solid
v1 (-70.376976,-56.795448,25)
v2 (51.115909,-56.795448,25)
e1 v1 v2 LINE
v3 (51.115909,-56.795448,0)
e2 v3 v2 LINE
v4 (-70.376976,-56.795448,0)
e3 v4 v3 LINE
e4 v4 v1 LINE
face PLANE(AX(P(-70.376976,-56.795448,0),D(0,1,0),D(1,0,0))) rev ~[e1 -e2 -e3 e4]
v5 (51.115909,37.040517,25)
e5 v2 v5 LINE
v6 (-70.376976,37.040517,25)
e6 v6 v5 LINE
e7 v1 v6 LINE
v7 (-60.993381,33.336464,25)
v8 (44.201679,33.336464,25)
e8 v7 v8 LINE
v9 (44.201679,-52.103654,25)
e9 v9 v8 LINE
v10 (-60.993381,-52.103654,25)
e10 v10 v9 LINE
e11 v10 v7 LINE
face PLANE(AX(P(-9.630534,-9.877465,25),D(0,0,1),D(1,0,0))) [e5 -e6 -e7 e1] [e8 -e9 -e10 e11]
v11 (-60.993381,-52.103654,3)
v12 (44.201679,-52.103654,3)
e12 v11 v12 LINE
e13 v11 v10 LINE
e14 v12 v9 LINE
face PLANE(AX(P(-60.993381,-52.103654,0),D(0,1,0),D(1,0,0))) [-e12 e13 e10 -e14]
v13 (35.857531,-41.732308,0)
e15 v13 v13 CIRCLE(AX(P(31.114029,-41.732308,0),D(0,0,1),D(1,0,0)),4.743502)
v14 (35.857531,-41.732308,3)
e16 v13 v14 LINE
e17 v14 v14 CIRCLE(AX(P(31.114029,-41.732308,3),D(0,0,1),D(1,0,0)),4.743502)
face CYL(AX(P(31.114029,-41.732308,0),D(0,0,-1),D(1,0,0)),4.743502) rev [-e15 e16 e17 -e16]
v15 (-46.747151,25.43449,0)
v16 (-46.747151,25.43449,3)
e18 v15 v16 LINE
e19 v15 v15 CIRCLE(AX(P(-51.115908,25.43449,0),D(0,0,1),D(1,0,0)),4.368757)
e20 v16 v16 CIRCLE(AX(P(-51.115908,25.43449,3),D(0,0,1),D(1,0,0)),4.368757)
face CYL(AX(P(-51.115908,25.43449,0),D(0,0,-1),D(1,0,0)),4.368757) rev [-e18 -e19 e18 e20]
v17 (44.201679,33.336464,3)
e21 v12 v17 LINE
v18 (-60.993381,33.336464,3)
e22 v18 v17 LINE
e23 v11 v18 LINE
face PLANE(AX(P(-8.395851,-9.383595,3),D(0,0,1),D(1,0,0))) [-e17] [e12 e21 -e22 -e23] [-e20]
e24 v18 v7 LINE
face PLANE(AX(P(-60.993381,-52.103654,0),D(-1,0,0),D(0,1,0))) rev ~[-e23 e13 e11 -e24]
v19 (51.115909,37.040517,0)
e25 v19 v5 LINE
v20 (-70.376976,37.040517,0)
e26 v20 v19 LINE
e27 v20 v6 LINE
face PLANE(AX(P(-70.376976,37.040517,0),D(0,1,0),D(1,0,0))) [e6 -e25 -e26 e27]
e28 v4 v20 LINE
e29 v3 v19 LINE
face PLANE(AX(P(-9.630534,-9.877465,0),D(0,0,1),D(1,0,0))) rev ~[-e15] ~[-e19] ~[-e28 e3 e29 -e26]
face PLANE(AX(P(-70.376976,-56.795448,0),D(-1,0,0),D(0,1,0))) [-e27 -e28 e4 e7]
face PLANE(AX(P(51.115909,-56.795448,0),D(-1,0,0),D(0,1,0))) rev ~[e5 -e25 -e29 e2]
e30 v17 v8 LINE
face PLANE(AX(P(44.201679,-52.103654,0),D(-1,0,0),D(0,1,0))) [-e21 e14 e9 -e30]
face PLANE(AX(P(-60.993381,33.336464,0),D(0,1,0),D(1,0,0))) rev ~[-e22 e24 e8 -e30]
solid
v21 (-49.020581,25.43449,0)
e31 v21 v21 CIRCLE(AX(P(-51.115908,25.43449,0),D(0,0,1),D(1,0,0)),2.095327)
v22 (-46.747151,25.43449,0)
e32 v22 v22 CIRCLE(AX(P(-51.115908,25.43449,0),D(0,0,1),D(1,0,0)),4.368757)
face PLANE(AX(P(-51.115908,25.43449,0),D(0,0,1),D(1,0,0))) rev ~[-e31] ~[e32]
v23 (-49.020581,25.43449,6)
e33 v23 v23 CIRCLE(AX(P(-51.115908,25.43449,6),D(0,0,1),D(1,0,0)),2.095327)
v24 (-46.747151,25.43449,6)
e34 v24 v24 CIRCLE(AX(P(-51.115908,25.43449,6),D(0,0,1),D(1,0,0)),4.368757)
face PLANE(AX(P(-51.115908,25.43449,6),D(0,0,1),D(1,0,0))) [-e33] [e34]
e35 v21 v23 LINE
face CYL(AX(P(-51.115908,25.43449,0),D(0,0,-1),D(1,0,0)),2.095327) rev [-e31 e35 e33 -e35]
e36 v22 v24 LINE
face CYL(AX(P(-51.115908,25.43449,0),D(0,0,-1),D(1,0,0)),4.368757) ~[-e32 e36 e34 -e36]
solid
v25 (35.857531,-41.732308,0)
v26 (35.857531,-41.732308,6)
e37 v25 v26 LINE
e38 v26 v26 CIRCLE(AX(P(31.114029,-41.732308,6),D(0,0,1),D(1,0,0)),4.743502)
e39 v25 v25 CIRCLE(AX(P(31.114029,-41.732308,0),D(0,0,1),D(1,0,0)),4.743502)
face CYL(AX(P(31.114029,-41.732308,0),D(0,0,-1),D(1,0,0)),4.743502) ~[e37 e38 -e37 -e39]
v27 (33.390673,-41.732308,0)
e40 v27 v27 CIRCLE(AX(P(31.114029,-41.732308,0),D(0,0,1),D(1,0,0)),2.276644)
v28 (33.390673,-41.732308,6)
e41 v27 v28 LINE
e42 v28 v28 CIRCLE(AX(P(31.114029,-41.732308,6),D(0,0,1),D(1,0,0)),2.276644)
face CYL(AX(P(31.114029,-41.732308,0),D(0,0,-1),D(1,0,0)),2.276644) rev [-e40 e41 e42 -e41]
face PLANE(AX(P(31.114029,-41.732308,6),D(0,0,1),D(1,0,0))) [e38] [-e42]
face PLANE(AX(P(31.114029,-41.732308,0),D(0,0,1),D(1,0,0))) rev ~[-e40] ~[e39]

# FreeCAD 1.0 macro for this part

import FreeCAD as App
import Part
import Sketcher

doc = App.newDocument("Part")
params = doc.addObject("Spreadsheet::Sheet", "Params")
for row, (alias, value) in enumerate([
    ("pad1_length", "6 mm"),
    ("pad2_length", "3 mm"),
    ("pad3_length", "25 mm"),
], start=1):
    params.set(f"A{row}", alias)
    params.set(f"B{row}", "=" + value)
    params.setAlias(f"B{row}", alias)

body = doc.addObject("PartDesign::Body", "Body")
body.AllowCompound = True

# Sketch on XY plane
sketch1 = body.newObject("Sketcher::SketchObject", "Sketch")
sketch1.AttachmentSupport = (doc.getObject("XY_Plane"), [""])
sketch1.MapMode = "FlatFace"
sketch1.addGeometry([
    Part.Circle(App.Vector(-51.115908, 25.43449, 0), App.Vector(0, 0, 1), 4.368757),
    Part.Circle(App.Vector(-51.115908, 25.43449, 0), App.Vector(0, 0, 1), 2.095327),
    Part.Circle(App.Vector(31.114029, -41.732308, 0), App.Vector(0, 0, 1), 4.743502),
    Part.Circle(App.Vector(31.114029, -41.732308, 0), App.Vector(0, 0, 1), 2.276644),
], False)
sketch1.addConstraint([
    Sketcher.Constraint("Coincident", 1, 3, 0, 3),
    Sketcher.Constraint("Coincident", 3, 3, 2, 3),
    Sketcher.Constraint("Diameter", 3, 4.553288),
    Sketcher.Constraint("Diameter", 0, 8.737514),
    Sketcher.Constraint("Diameter", 1, 4.190654),
    Sketcher.Constraint("Diameter", 2, 9.487004),
    Sketcher.Constraint("DistanceY", 2, 3, 0, 3, 67.166798),
    Sketcher.Constraint("DistanceY", -1, 1, 0, 3, 25.43449),
    Sketcher.Constraint("DistanceX", -1, 1, 2, 3, 31.114029),
    Sketcher.Constraint("DistanceX", 0, 3, -1, 1, 51.115908),
])
pad1 = body.newObject("PartDesign::Pad", "Pad")
pad1.Profile = sketch1
pad1.setExpression("Length", "Params.pad1_length")
body2 = doc.addObject("PartDesign::Body", "Body001")

# Sketch on XY plane
sketch2 = body2.newObject("Sketcher::SketchObject", "Sketch001")
sketch2.AttachmentSupport = (doc.getObject("XY_Plane001"), [""])
sketch2.MapMode = "FlatFace"
sketch2.addGeometry([
    Part.LineSegment(App.Vector(-60.993381, 33.336464, 0), App.Vector(-60.993381, -52.103654, 0)),  # 0
    Part.LineSegment(App.Vector(-60.993381, -52.103654, 0), App.Vector(44.201679, -52.103654, 0)),  # 1
    Part.LineSegment(App.Vector(44.201679, -52.103654, 0), App.Vector(44.201679, 33.336464, 0)),  # 2
    Part.LineSegment(App.Vector(44.201679, 33.336464, 0), App.Vector(-60.993381, 33.336464, 0)),  # 3
    Part.Circle(App.Vector(31.114029, -41.732308, 0), App.Vector(0, 0, 1), 4.743502),  # 4
    Part.Circle(App.Vector(-51.115908, 25.43449, 0), App.Vector(0, 0, 1), 4.368757),  # 5
], False)
sketch2.addConstraint([
    Sketcher.Constraint("Coincident", 0, 2, 1, 1),
    Sketcher.Constraint("Coincident", 1, 2, 2, 1),
    Sketcher.Constraint("Coincident", 2, 2, 3, 1),
    Sketcher.Constraint("Coincident", 3, 2, 0, 1),
    Sketcher.Constraint("Vertical", 0),
    Sketcher.Constraint("Horizontal", 1),
    Sketcher.Constraint("Vertical", 2),
    Sketcher.Constraint("Horizontal", 3),
    Sketcher.Constraint("Diameter", 4, 9.487004),
    Sketcher.Constraint("Diameter", 5, 8.737514),
    Sketcher.Constraint("DistanceX", 1, 1, 1, 2, 105.195061),
    Sketcher.Constraint("DistanceY", 0, 2, 0, 1, 85.440118),
    Sketcher.Constraint("DistanceY", 4, 3, 5, 3, 67.166798),
    Sketcher.Constraint("DistanceX", -1, 1, 4, 3, 31.114029),
    Sketcher.Constraint("DistanceY", 4, 3, -1, 1, 41.732308),
    Sketcher.Constraint("DistanceX", 0, 2, -1, 1, 60.993381),
    Sketcher.Constraint("DistanceY", 4, 3, 2, 2, 75.068772),
    Sketcher.Constraint("DistanceX", 5, 3, -1, 1, 51.115908),
])
pad2 = body2.newObject("PartDesign::Pad", "Pad001")
pad2.Profile = sketch2
pad2.setExpression("Length", "Params.pad2_length")

# Sketch on XY plane
sketch3 = body2.newObject("Sketcher::SketchObject", "Sketch002")
sketch3.AttachmentSupport = (doc.getObject("XY_Plane001"), [""])
sketch3.MapMode = "FlatFace"
sketch3.addGeometry([
    Part.LineSegment(App.Vector(-70.376976, 37.040517, 0), App.Vector(-70.376976, -56.795448, 0)),  # 0
    Part.LineSegment(App.Vector(-70.376976, -56.795448, 0), App.Vector(51.115909, -56.795448, 0)),  # 1
    Part.LineSegment(App.Vector(51.115909, -56.795448, 0), App.Vector(51.115909, 37.040517, 0)),  # 2
    Part.LineSegment(App.Vector(51.115909, 37.040517, 0), App.Vector(-70.376976, 37.040517, 0)),  # 3
    Part.LineSegment(App.Vector(44.201679, -52.103654, 0), App.Vector(-60.993381, -52.103654, 0)),  # 4
    Part.LineSegment(App.Vector(-60.993381, -52.103654, 0), App.Vector(-60.993381, 33.336464, 0)),  # 5
    Part.LineSegment(App.Vector(-60.993381, 33.336464, 0), App.Vector(44.201679, 33.336464, 0)),  # 6
    Part.LineSegment(App.Vector(44.201679, 33.336464, 0), App.Vector(44.201679, -52.103654, 0)),  # 7
], False)
sketch3.addConstraint([
    Sketcher.Constraint("Coincident", 0, 2, 1, 1),
    Sketcher.Constraint("Coincident", 1, 2, 2, 1),
    Sketcher.Constraint("Coincident", 2, 2, 3, 1),
    Sketcher.Constraint("Coincident", 3, 2, 0, 1),
    Sketcher.Constraint("Coincident", 4, 2, 5, 1),
    Sketcher.Constraint("Coincident", 5, 2, 6, 1),
    Sketcher.Constraint("Coincident", 6, 2, 7, 1),
    Sketcher.Constraint("Coincident", 7, 2, 4, 1),
    Sketcher.Constraint("Vertical", 0),
    Sketcher.Constraint("Horizontal", 1),
    Sketcher.Constraint("Vertical", 2),
    Sketcher.Constraint("Horizontal", 3),
    Sketcher.Constraint("Horizontal", 4),
    Sketcher.Constraint("Vertical", 5),
    Sketcher.Constraint("Horizontal", 6),
    Sketcher.Constraint("Vertical", 7),
    Sketcher.Constraint("DistanceX", 4, 2, 4, 1, 105.195061),
    Sketcher.Constraint("DistanceY", 5, 1, 5, 2, 85.440118),
    Sketcher.Constraint("DistanceX", 1, 1, 1, 2, 121.492885),
    Sketcher.Constraint("DistanceY", 0, 2, 0, 1, 93.835965),
    Sketcher.Constraint("DistanceX", -1, 1, 1, 2, 51.115909),
    Sketcher.Constraint("DistanceX", 4, 2, -1, 1, 60.993381),
    Sketcher.Constraint("DistanceY", 4, 2, 3, 2, 89.144171),
    Sketcher.Constraint("DistanceY", 0, 2, -1, 1, 56.795448),
])
pad3 = body2.newObject("PartDesign::Pad", "Pad002")
pad3.Profile = sketch3
pad3.setExpression("Length", "Params.pad3_length")

doc.recompute()
